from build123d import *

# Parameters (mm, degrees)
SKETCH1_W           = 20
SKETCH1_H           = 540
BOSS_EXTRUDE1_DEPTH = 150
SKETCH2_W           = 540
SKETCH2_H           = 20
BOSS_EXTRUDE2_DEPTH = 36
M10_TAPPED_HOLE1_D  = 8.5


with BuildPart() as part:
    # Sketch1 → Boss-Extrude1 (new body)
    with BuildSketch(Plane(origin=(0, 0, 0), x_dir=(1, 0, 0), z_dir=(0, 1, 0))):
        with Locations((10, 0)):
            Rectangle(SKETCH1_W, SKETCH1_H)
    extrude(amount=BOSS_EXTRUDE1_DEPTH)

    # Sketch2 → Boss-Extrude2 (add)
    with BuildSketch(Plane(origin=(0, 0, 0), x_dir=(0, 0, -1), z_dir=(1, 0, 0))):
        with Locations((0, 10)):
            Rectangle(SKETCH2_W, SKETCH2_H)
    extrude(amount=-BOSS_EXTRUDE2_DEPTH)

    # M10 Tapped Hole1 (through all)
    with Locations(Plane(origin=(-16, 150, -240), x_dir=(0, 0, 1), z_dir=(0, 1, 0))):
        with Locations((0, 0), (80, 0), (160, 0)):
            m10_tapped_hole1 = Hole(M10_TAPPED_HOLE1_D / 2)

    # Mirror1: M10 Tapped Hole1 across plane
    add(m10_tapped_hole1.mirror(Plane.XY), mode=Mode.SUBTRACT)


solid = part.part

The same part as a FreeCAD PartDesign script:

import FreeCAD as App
import Part
import Sketcher


def add_polygon(sketch, points):
    """Adds a closed chain of lines whose ends are joined by coincident constraints."""
    first, n = sketch.GeometryCount, len(points)
    for a, b in zip(points, points[1:] + points[:1]):
        sketch.addGeometry(Part.LineSegment(App.Vector(*a, 0), App.Vector(*b, 0)), False)
    for i in range(n):
        sketch.addConstraint(Sketcher.Constraint("Coincident", first + i, 2, first + (i + 1) % n, 1))

doc = App.newDocument("Part")
body = doc.addObject("PartDesign::Body", "Body")

sketch1 = body.newObject("Sketcher::SketchObject", "Sketch")
sketch1.AttachmentSupport = (doc.getObject("XZ_Plane"), [""])
sketch1.MapMode = "FlatFace"
add_polygon(sketch1, [(0, -270), (0, 270), (20, 270), (20, -270)])
sketch1.addConstraint([
    Sketcher.Constraint("Vertical", 0),
    Sketcher.Constraint("Horizontal", 1),
    Sketcher.Constraint("Vertical", 2),
    Sketcher.Constraint("Horizontal", 3),
    Sketcher.Constraint("Symmetric", 0, 2, 3, 2, -1, 1),
    Sketcher.Constraint("DistanceX", 1, 1, 1, 2, 20.0),
    Sketcher.Constraint("DistanceY", 0, 1, 0, 2, 540.0),
])
pad1 = body.newObject("PartDesign::Pad", "Pad")
pad1.Profile = sketch1
pad1.Length = 150
pad1.Reversed = True

sketch2 = body.newObject("Sketcher::SketchObject", "Sketch001")
sketch2.AttachmentSupport = (doc.getObject("YZ_Plane"), [""])
sketch2.MapMode = "FlatFace"
add_polygon(sketch2, [(20, 270), (0, 270), (0, -270), (20, -270)])
sketch2.addConstraint([
    Sketcher.Constraint("Horizontal", 0),
    Sketcher.Constraint("Vertical", 1),
    Sketcher.Constraint("Horizontal", 2),
    Sketcher.Constraint("Vertical", 3),
    Sketcher.Constraint("Symmetric", 0, 2, 1, 2, -1, 1),
    Sketcher.Constraint("DistanceX", 0, 2, 0, 1, 20.0),
    Sketcher.Constraint("DistanceY", 1, 2, 1, 1, 540.0),
])
pad2 = body.newObject("PartDesign::Pad", "Pad001")
pad2.Profile = sketch2
pad2.Length = 36
pad2.Reversed = True

sketch3 = body.newObject("Sketcher::SketchObject", "Sketch002")
sketch3.AttachmentSupport = (doc.getObject("XZ_Plane"), [""])
sketch3.MapMode = "FlatFace"
sketch3.AttachmentOffset = App.Placement(App.Vector(0, 0, -150), App.Rotation())
sketch3.addGeometry([
    Part.Circle(App.Vector(-16, -240, 0), App.Vector(0, 0, 1), 4.25),
    Part.Circle(App.Vector(-16, -160, 0), App.Vector(0, 0, 1), 4.25),
    Part.Circle(App.Vector(-16, -80, 0), App.Vector(0, 0, 1), 4.25),
], False)
sketch3.addConstraint([
    Sketcher.Constraint("Equal", 0, 1),
    Sketcher.Constraint("Equal", 1, 2),
    Sketcher.Constraint("Vertical", 0, 3, 1, 3),
    Sketcher.Constraint("Vertical", 1, 3, 2, 3),
    Sketcher.Constraint("Diameter", 0, 8.5),
    Sketcher.Constraint("DistanceX", 0, 3, -1, 1, 16.0),
    Sketcher.Constraint("DistanceY", 0, 3, -1, 1, 240.0),
    Sketcher.Constraint("DistanceY", 1, 3, -1, 1, 160.0),
    Sketcher.Constraint("DistanceY", 2, 3, -1, 1, 80.0),
])
doc.recompute()
hole = body.newObject("PartDesign::Hole", "Hole")
hole.Profile = sketch3
hole.ThreadType = "None"
hole.Diameter = 8.5
hole.DepthType = "ThroughAll"
hole.Reversed = True
doc.recompute()

mirrored = body.newObject("PartDesign::Mirrored", "Mirrored")
mirrored.Originals = [hole]
mirrored.MirrorPlane = (doc.getObject("XY_Plane"), [""])
body.Tip = mirrored

doc.recompute()
